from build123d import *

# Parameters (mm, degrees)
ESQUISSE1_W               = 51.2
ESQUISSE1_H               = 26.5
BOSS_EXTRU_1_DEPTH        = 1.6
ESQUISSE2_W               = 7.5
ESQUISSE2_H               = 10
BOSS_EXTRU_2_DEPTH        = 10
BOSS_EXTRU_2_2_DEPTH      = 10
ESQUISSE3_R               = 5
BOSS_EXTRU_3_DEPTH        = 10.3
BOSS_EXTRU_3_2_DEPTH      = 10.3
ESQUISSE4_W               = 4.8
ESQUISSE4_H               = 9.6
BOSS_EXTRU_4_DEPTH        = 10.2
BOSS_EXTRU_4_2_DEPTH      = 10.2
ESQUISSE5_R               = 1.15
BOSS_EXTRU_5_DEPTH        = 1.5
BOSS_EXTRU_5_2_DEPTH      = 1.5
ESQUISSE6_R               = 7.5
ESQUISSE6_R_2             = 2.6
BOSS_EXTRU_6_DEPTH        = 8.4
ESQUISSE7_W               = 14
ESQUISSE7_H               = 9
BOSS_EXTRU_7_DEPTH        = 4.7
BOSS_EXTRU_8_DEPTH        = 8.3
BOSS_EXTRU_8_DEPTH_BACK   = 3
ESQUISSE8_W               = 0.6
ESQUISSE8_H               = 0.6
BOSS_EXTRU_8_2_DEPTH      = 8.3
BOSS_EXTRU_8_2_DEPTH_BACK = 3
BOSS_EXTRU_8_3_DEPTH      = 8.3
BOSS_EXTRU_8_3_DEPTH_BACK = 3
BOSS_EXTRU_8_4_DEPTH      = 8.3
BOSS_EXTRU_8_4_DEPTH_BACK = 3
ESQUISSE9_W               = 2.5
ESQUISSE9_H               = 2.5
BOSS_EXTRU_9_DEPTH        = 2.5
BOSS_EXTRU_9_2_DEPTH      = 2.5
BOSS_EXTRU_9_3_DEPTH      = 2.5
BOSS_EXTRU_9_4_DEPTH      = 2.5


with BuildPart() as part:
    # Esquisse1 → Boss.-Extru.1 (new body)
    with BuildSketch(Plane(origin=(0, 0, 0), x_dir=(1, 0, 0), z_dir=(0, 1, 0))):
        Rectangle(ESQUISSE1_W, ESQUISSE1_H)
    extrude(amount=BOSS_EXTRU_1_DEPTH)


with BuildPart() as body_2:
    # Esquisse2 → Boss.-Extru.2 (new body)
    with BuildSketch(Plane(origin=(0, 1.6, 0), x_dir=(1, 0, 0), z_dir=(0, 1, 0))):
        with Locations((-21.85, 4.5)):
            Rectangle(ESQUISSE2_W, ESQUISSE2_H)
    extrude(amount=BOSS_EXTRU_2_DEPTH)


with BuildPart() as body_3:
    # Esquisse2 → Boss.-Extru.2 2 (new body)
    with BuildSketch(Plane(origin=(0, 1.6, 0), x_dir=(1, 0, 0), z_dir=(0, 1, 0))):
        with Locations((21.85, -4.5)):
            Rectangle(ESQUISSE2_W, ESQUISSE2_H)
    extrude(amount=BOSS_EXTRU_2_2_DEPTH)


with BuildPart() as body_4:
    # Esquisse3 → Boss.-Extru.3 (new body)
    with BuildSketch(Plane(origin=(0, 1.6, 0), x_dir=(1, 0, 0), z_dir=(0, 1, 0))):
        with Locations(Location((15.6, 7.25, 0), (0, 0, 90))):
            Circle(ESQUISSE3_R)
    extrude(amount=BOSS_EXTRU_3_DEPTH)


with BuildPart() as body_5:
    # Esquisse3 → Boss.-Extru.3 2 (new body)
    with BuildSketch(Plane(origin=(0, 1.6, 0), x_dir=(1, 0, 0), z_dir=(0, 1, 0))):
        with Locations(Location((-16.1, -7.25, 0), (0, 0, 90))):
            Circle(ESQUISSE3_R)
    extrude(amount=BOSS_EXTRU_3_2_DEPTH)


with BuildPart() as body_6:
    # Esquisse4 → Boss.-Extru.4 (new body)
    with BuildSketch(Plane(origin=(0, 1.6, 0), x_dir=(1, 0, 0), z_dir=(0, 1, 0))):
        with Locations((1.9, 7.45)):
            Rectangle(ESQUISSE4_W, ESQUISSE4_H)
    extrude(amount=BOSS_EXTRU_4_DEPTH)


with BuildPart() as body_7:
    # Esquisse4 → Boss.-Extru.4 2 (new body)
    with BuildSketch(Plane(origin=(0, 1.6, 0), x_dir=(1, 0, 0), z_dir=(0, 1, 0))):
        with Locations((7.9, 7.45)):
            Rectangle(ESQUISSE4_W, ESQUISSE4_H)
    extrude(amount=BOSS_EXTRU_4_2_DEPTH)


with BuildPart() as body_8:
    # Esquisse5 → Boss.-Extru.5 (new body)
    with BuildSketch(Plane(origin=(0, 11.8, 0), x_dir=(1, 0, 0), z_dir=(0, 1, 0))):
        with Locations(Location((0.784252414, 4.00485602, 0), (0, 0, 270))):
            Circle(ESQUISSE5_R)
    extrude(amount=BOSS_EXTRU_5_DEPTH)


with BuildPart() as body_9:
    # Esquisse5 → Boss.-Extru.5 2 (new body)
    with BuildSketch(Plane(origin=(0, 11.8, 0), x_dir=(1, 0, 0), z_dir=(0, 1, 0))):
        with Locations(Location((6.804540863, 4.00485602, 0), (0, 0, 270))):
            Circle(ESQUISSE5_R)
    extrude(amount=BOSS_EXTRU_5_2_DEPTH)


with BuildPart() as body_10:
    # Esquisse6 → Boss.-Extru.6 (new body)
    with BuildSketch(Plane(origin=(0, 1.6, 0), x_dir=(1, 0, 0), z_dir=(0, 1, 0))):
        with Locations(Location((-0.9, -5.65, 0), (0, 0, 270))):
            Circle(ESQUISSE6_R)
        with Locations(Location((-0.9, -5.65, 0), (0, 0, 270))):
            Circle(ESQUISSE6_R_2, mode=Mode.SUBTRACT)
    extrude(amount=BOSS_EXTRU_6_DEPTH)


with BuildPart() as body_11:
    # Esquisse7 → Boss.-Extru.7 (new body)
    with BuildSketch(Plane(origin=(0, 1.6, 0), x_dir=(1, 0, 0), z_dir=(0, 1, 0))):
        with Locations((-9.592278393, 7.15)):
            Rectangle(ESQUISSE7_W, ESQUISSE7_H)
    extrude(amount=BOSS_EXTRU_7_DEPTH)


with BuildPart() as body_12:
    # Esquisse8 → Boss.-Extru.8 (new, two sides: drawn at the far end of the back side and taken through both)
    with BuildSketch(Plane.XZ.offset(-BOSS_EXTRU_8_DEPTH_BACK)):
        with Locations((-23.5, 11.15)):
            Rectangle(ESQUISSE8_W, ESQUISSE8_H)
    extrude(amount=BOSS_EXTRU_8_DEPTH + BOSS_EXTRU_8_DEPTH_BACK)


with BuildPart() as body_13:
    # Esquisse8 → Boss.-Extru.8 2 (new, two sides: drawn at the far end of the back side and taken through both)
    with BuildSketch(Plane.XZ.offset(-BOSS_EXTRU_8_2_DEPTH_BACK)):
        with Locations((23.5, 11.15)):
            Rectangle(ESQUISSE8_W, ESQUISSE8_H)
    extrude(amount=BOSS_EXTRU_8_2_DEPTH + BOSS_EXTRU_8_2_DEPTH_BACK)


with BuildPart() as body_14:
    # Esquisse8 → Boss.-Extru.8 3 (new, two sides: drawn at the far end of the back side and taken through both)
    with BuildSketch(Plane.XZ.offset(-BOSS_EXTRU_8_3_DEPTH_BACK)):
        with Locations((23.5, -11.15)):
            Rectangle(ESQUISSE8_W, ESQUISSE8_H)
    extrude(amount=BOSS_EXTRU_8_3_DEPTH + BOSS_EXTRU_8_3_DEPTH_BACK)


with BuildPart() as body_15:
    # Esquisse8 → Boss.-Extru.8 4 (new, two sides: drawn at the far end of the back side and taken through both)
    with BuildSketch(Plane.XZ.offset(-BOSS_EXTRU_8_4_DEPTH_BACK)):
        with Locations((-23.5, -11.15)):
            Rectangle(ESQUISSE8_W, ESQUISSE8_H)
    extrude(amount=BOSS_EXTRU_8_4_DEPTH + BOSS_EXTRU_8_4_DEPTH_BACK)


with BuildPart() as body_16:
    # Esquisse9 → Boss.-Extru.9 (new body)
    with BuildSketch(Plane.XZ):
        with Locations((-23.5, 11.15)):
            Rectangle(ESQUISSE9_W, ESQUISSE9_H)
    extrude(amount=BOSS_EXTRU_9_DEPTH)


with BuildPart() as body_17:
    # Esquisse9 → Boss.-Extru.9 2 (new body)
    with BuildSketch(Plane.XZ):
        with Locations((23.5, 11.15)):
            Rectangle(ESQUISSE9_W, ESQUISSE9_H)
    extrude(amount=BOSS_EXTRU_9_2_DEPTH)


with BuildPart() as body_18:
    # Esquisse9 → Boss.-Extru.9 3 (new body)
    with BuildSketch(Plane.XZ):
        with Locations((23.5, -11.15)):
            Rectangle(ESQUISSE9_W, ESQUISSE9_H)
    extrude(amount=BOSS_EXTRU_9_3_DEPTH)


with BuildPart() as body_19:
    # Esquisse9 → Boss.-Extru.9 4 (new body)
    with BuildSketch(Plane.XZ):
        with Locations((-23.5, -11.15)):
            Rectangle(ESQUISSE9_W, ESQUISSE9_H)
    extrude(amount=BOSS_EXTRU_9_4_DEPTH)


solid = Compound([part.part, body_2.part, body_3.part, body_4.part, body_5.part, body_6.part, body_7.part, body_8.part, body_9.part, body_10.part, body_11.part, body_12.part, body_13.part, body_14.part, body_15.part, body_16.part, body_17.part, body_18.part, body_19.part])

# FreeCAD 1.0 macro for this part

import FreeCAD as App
import Part
import Sketcher

V = App.Vector
Q = App.Units.Quantity


def add_polygon(sketch, points):
    """Adds a closed chain of lines whose ends are joined by coincident constraints."""
    first, n = sketch.GeometryCount, len(points)
    for a, b in zip(points, points[1:] + points[:1]):
        sketch.addGeometry(Part.LineSegment(App.Vector(*a, 0), App.Vector(*b, 0)), False)
    for i in range(n):
        sketch.addConstraint(Sketcher.Constraint("Coincident", first + i, 2, first + (i + 1) % n, 1))

doc = App.newDocument("Part")
body = doc.addObject("PartDesign::Body", "Body")

sketch1 = body.newObject("Sketcher::SketchObject", "Sketch")
sketch1.AttachmentSupport = (doc.getObject("XZ_Plane"), [""])
sketch1.MapMode = "FlatFace"
add_polygon(sketch1, [(-25.6, -13.25), (-25.6, 13.25), (25.6, 13.25), (25.6, -13.25)])
sketch1.addConstraint([
    Sketcher.Constraint("Vertical", 0),
    Sketcher.Constraint("Horizontal", 1),
    Sketcher.Constraint("Vertical", 2),
    Sketcher.Constraint("Horizontal", 3),
    Sketcher.Constraint("Symmetric", 0, 2, 2, 2, -1, 1),
    Sketcher.Constraint("DistanceX", 1, 1, 1, 2, Q("51.2 mm")),
    Sketcher.Constraint("DistanceY", 0, 1, 0, 2, Q("26.5 mm")),
])
pad1 = body.newObject("PartDesign::Pad", "Pad")
pad1.Profile = sketch1
pad1.Length = 1.6
pad1.Reversed = True
body2 = doc.addObject("PartDesign::Body", "Body001")

sketch2 = body2.newObject("Sketcher::SketchObject", "Sketch001")
sketch2.AttachmentSupport = (doc.getObject("XZ_Plane001"), [""])
sketch2.MapMode = "FlatFace"
sketch2.AttachmentOffset = App.Placement(V(0, 0, -1.6), App.Rotation())
add_polygon(sketch2, [(-25.6, -9.5), (-25.6, 0.5), (-18.1, 0.5), (-18.1, -9.5)])
sketch2.addConstraint([
    Sketcher.Constraint("Vertical", 0),
    Sketcher.Constraint("Horizontal", 1),
    Sketcher.Constraint("Vertical", 2),
    Sketcher.Constraint("Horizontal", 3),
    Sketcher.Constraint("DistanceY", 0, 1, 0, 2, Q("10 mm")),
    Sketcher.Constraint("DistanceX", 1, 1, 1, 2, Q("7.5 mm")),
    Sketcher.Constraint("DistanceX", 0, 2, -1, 1, Q("25.6 mm")),
    Sketcher.Constraint("DistanceY", -1, 1, 0, 2, Q("0.5 mm")),
])
pad2 = body2.newObject("PartDesign::Pad", "Pad001")
pad2.Profile = sketch2
pad2.Length = 10
pad2.Reversed = True
body3 = doc.addObject("PartDesign::Body", "Body002")

sketch3 = body3.newObject("Sketcher::SketchObject", "Sketch002")
sketch3.AttachmentSupport = (doc.getObject("XZ_Plane002"), [""])
sketch3.MapMode = "FlatFace"
sketch3.AttachmentOffset = App.Placement(V(0, 0, -1.6), App.Rotation())
add_polygon(sketch3, [(18.1, -0.5), (18.1, 9.5), (25.6, 9.5), (25.6, -0.5)])
sketch3.addConstraint([
    Sketcher.Constraint("Vertical", 0),
    Sketcher.Constraint("Horizontal", 1),
    Sketcher.Constraint("Vertical", 2),
    Sketcher.Constraint("Horizontal", 3),
    Sketcher.Constraint("DistanceY", 0, 1, 0, 2, Q("10 mm")),
    Sketcher.Constraint("DistanceX", 1, 1, 1, 2, Q("7.5 mm")),
    Sketcher.Constraint("DistanceX", -1, 1, 0, 2, Q("18.1 mm")),
    Sketcher.Constraint("DistanceY", -1, 1, 0, 2, Q("9.5 mm")),
])
pad3 = body3.newObject("PartDesign::Pad", "Pad002")
pad3.Profile = sketch3
pad3.Length = 10
pad3.Reversed = True
body4 = doc.addObject("PartDesign::Body", "Body003")

sketch4 = body4.newObject("Sketcher::SketchObject", "Sketch003")
sketch4.AttachmentSupport = (doc.getObject("XZ_Plane003"), [""])
sketch4.MapMode = "FlatFace"
sketch4.AttachmentOffset = App.Placement(V(0, 0, -1.6), App.Rotation())
sketch4.addGeometry(Part.Circle(V(15.6, -7.25, 0), V(0, 0, 1), 5), False)
sketch4.addConstraint([
    Sketcher.Constraint("Diameter", 0, Q("10 mm")),
    Sketcher.Constraint("DistanceX", -1, 1, 0, 3, Q("15.6 mm")),
    Sketcher.Constraint("DistanceY", 0, 3, -1, 1, Q("7.25 mm")),
])
pad4 = body4.newObject("PartDesign::Pad", "Pad003")
pad4.Profile = sketch4
pad4.Length = 10.3
pad4.Reversed = True
body5 = doc.addObject("PartDesign::Body", "Body004")

sketch5 = body5.newObject("Sketcher::SketchObject", "Sketch004")
sketch5.AttachmentSupport = (doc.getObject("XZ_Plane004"), [""])
sketch5.MapMode = "FlatFace"
sketch5.AttachmentOffset = App.Placement(V(0, 0, -1.6), App.Rotation())
sketch5.addGeometry(Part.Circle(V(-16.1, 7.25, 0), V(0, 0, 1), 5), False)
sketch5.addConstraint([
    Sketcher.Constraint("Diameter", 0, Q("10 mm")),
    Sketcher.Constraint("DistanceX", 0, 3, -1, 1, Q("16.1 mm")),
    Sketcher.Constraint("DistanceY", -1, 1, 0, 3, Q("7.25 mm")),
])
pad5 = body5.newObject("PartDesign::Pad", "Pad004")
pad5.Profile = sketch5
pad5.Length = 10.3
pad5.Reversed = True
body6 = doc.addObject("PartDesign::Body", "Body005")

sketch6 = body6.newObject("Sketcher::SketchObject", "Sketch005")
sketch6.AttachmentSupport = (doc.getObject("XZ_Plane005"), [""])
sketch6.MapMode = "FlatFace"
sketch6.AttachmentOffset = App.Placement(V(0, 0, -1.6), App.Rotation())
add_polygon(sketch6, [(-0.5, -12.25), (-0.5, -2.65), (4.3, -2.65), (4.3, -12.25)])
sketch6.addConstraint([
    Sketcher.Constraint("Vertical", 0),
    Sketcher.Constraint("Horizontal", 1),
    Sketcher.Constraint("Vertical", 2),
    Sketcher.Constraint("Horizontal", 3),
    Sketcher.Constraint("DistanceX", 1, 1, 1, 2, Q("4.8 mm")),
    Sketcher.Constraint("DistanceY", 0, 1, 0, 2, Q("9.6 mm")),
    Sketcher.Constraint("DistanceX", 0, 2, -1, 1, Q("0.5 mm")),
    Sketcher.Constraint("DistanceY", 0, 2, -1, 1, Q("2.65 mm")),
])
pad6 = body6.newObject("PartDesign::Pad", "Pad005")
pad6.Profile = sketch6
pad6.Length = 10.2
pad6.Reversed = True
body7 = doc.addObject("PartDesign::Body", "Body006")

sketch7 = body7.newObject("Sketcher::SketchObject", "Sketch006")
sketch7.AttachmentSupport = (doc.getObject("XZ_Plane006"), [""])
sketch7.MapMode = "FlatFace"
sketch7.AttachmentOffset = App.Placement(V(0, 0, -1.6), App.Rotation())
add_polygon(sketch7, [(5.5, -12.25), (5.5, -2.65), (10.3, -2.65), (10.3, -12.25)])
sketch7.addConstraint([
    Sketcher.Constraint("Vertical", 0),
    Sketcher.Constraint("Horizontal", 1),
    Sketcher.Constraint("Vertical", 2),
    Sketcher.Constraint("Horizontal", 3),
    Sketcher.Constraint("DistanceX", 1, 1, 1, 2, Q("4.8 mm")),
    Sketcher.Constraint("DistanceY", 0, 1, 0, 2, Q("9.6 mm")),
    Sketcher.Constraint("DistanceX", -1, 1, 0, 2, Q("5.5 mm")),
    Sketcher.Constraint("DistanceY", 0, 2, -1, 1, Q("2.65 mm")),
])
pad7 = body7.newObject("PartDesign::Pad", "Pad006")
pad7.Profile = sketch7
pad7.Length = 10.2
pad7.Reversed = True
body8 = doc.addObject("PartDesign::Body", "Body007")

sketch8 = body8.newObject("Sketcher::SketchObject", "Sketch007")
sketch8.AttachmentSupport = (doc.getObject("XZ_Plane007"), [""])
sketch8.MapMode = "FlatFace"
sketch8.AttachmentOffset = App.Placement(V(0, 0, -11.8), App.Rotation())
sketch8.addGeometry(Part.Circle(V(0.784252, -4.004856, 0), V(0, 0, 1), 1.15), False)
sketch8.addConstraint([
    Sketcher.Constraint("Diameter", 0, Q("2.3 mm")),
    Sketcher.Constraint("DistanceX", -1, 1, 0, 3, Q("0.784252 mm")),
    Sketcher.Constraint("DistanceY", 0, 3, -1, 1, Q("4.004856 mm")),
])
pad8 = body8.newObject("PartDesign::Pad", "Pad007")
pad8.Profile = sketch8
pad8.Length = 1.5
pad8.Reversed = True
body9 = doc.addObject("PartDesign::Body", "Body008")

sketch9 = body9.newObject("Sketcher::SketchObject", "Sketch008")
sketch9.AttachmentSupport = (doc.getObject("XZ_Plane008"), [""])
sketch9.MapMode = "FlatFace"
sketch9.AttachmentOffset = App.Placement(V(0, 0, -11.8), App.Rotation())
sketch9.addGeometry(Part.Circle(V(6.804541, -4.004856, 0), V(0, 0, 1), 1.15), False)
sketch9.addConstraint([
    Sketcher.Constraint("Diameter", 0, Q("2.3 mm")),
    Sketcher.Constraint("DistanceX", -1, 1, 0, 3, Q("6.804541 mm")),
    Sketcher.Constraint("DistanceY", 0, 3, -1, 1, Q("4.004856 mm")),
])
pad9 = body9.newObject("PartDesign::Pad", "Pad008")
pad9.Profile = sketch9
pad9.Length = 1.5
pad9.Reversed = True
body10 = doc.addObject("PartDesign::Body", "Body009")

sketch10 = body10.newObject("Sketcher::SketchObject", "Sketch009")
sketch10.AttachmentSupport = (doc.getObject("XZ_Plane009"), [""])
sketch10.MapMode = "FlatFace"
sketch10.AttachmentOffset = App.Placement(V(0, 0, -1.6), App.Rotation())
sketch10.addGeometry([
    Part.Circle(V(-0.9, 5.65, 0), V(0, 0, 1), 7.5),
    Part.Circle(V(-0.9, 5.65, 0), V(0, 0, 1), 2.6),
], False)
sketch10.addConstraint([
    Sketcher.Constraint("Coincident", 1, 3, 0, 3),
    Sketcher.Constraint("Diameter", 0, Q("15 mm")),
    Sketcher.Constraint("Diameter", 1, Q("5.2 mm")),
    Sketcher.Constraint("DistanceX", 0, 3, -1, 1, Q("0.9 mm")),
    Sketcher.Constraint("DistanceY", -1, 1, 0, 3, Q("5.65 mm")),
])
pad10 = body10.newObject("PartDesign::Pad", "Pad009")
pad10.Profile = sketch10
pad10.Length = 8.4
pad10.Reversed = True
body11 = doc.addObject("PartDesign::Body", "Body010")

sketch11 = body11.newObject("Sketcher::SketchObject", "Sketch010")
sketch11.AttachmentSupport = (doc.getObject("XZ_Plane010"), [""])
sketch11.MapMode = "FlatFace"
sketch11.AttachmentOffset = App.Placement(V(0, 0, -1.6), App.Rotation())
add_polygon(sketch11, [(-16.592278, -11.65), (-16.592278, -2.65), (-2.592278, -2.65), (-2.592278, -11.65)])
sketch11.addConstraint([
    Sketcher.Constraint("Vertical", 0),
    Sketcher.Constraint("Horizontal", 1),
    Sketcher.Constraint("Vertical", 2),
    Sketcher.Constraint("Horizontal", 3),
    Sketcher.Constraint("DistanceX", 1, 1, 1, 2, Q("14 mm")),
    Sketcher.Constraint("DistanceY", 0, 1, 0, 2, Q("9 mm")),
    Sketcher.Constraint("DistanceY", 0, 2, -1, 1, Q("2.65 mm")),
    Sketcher.Constraint("DistanceX", 0, 2, -1, 1, Q("16.592278 mm")),
])
pad11 = body11.newObject("PartDesign::Pad", "Pad010")
pad11.Profile = sketch11
pad11.Length = 4.7
pad11.Reversed = True
body12 = doc.addObject("PartDesign::Body", "Body011")

sketch12 = body12.newObject("Sketcher::SketchObject", "Sketch011")
sketch12.AttachmentSupport = (doc.getObject("XZ_Plane011"), [""])
sketch12.MapMode = "FlatFace"
add_polygon(sketch12, [(-23.8, 11.45), (-23.8, 10.85), (-23.2, 10.85), (-23.2, 11.45)])
sketch12.addConstraint([
    Sketcher.Constraint("Vertical", 0),
    Sketcher.Constraint("Horizontal", 1),
    Sketcher.Constraint("Vertical", 2),
    Sketcher.Constraint("Horizontal", 3),
    Sketcher.Constraint("Equal", 3, 0),
    Sketcher.Constraint("DistanceX", 1, 1, 1, 2, Q("0.6 mm")),
    Sketcher.Constraint("DistanceX", 0, 2, -1, 1, Q("23.8 mm")),
    Sketcher.Constraint("DistanceY", -1, 1, 0, 2, Q("10.85 mm")),
])
pad12 = body12.newObject("PartDesign::Pad", "Pad011")
pad12.Profile = sketch12
pad12.Type = "TwoLengths"
pad12.Length = 8.3
pad12.Length2 = 3
body13 = doc.addObject("PartDesign::Body", "Body012")

sketch13 = body13.newObject("Sketcher::SketchObject", "Sketch012")
sketch13.AttachmentSupport = (doc.getObject("XZ_Plane012"), [""])
sketch13.MapMode = "FlatFace"
add_polygon(sketch13, [(23.2, 11.45), (23.2, 10.85), (23.8, 10.85), (23.8, 11.45)])
sketch13.addConstraint([
    Sketcher.Constraint("Vertical", 0),
    Sketcher.Constraint("Horizontal", 1),
    Sketcher.Constraint("Vertical", 2),
    Sketcher.Constraint("Horizontal", 3),
    Sketcher.Constraint("Equal", 3, 0),
    Sketcher.Constraint("DistanceX", 1, 1, 1, 2, Q("0.6 mm")),
    Sketcher.Constraint("DistanceX", -1, 1, 0, 2, Q("23.2 mm")),
    Sketcher.Constraint("DistanceY", -1, 1, 0, 2, Q("10.85 mm")),
])
pad13 = body13.newObject("PartDesign::Pad", "Pad012")
pad13.Profile = sketch13
pad13.Type = "TwoLengths"
pad13.Length = 8.3
pad13.Length2 = 3
body14 = doc.addObject("PartDesign::Body", "Body013")

sketch14 = body14.newObject("Sketcher::SketchObject", "Sketch013")
sketch14.AttachmentSupport = (doc.getObject("XZ_Plane013"), [""])
sketch14.MapMode = "FlatFace"
add_polygon(sketch14, [(23.2, -10.85), (23.2, -11.45), (23.8, -11.45), (23.8, -10.85)])
sketch14.addConstraint([
    Sketcher.Constraint("Vertical", 0),
    Sketcher.Constraint("Horizontal", 1),
    Sketcher.Constraint("Vertical", 2),
    Sketcher.Constraint("Horizontal", 3),
    Sketcher.Constraint("Equal", 3, 0),
    Sketcher.Constraint("DistanceX", 1, 1, 1, 2, Q("0.6 mm")),
    Sketcher.Constraint("DistanceX", -1, 1, 0, 2, Q("23.2 mm")),
    Sketcher.Constraint("DistanceY", 0, 2, -1, 1, Q("11.45 mm")),
])
pad14 = body14.newObject("PartDesign::Pad", "Pad013")
pad14.Profile = sketch14
pad14.Type = "TwoLengths"
pad14.Length = 8.3
pad14.Length2 = 3
body15 = doc.addObject("PartDesign::Body", "Body014")

sketch15 = body15.newObject("Sketcher::SketchObject", "Sketch014")
sketch15.AttachmentSupport = (doc.getObject("XZ_Plane014"), [""])
sketch15.MapMode = "FlatFace"
add_polygon(sketch15, [(-23.8, -10.85), (-23.8, -11.45), (-23.2, -11.45), (-23.2, -10.85)])
sketch15.addConstraint([
    Sketcher.Constraint("Vertical", 0),
    Sketcher.Constraint("Horizontal", 1),
    Sketcher.Constraint("Vertical", 2),
    Sketcher.Constraint("Horizontal", 3),
    Sketcher.Constraint("Equal", 3, 0),
    Sketcher.Constraint("DistanceX", 1, 1, 1, 2, Q("0.6 mm")),
    Sketcher.Constraint("DistanceX", 0, 2, -1, 1, Q("23.8 mm")),
    Sketcher.Constraint("DistanceY", 0, 2, -1, 1, Q("11.45 mm")),
])
pad15 = body15.newObject("PartDesign::Pad", "Pad014")
pad15.Profile = sketch15
pad15.Type = "TwoLengths"
pad15.Length = 8.3
pad15.Length2 = 3
body16 = doc.addObject("PartDesign::Body", "Body015")

sketch16 = body16.newObject("Sketcher::SketchObject", "Sketch015")
sketch16.AttachmentSupport = (doc.getObject("XZ_Plane015"), [""])
sketch16.MapMode = "FlatFace"
add_polygon(sketch16, [(-24.75, 12.4), (-24.75, 9.9), (-22.25, 9.9), (-22.25, 12.4)])
sketch16.addConstraint([
    Sketcher.Constraint("Vertical", 0),
    Sketcher.Constraint("Horizontal", 1),
    Sketcher.Constraint("Vertical", 2),
    Sketcher.Constraint("Horizontal", 3),
    Sketcher.Constraint("Equal", 3, 0),
    Sketcher.Constraint("DistanceX", 1, 1, 1, 2, Q("2.5 mm")),
    Sketcher.Constraint("DistanceY", -1, 1, 0, 2, Q("9.9 mm")),
    Sketcher.Constraint("DistanceX", 0, 2, -1, 1, Q("24.75 mm")),
])
pad16 = body16.newObject("PartDesign::Pad", "Pad015")
pad16.Profile = sketch16
pad16.Length = 2.5
body17 = doc.addObject("PartDesign::Body", "Body016")

sketch17 = body17.newObject("Sketcher::SketchObject", "Sketch016")
sketch17.AttachmentSupport = (doc.getObject("XZ_Plane016"), [""])
sketch17.MapMode = "FlatFace"
add_polygon(sketch17, [(22.25, 12.4), (22.25, 9.9), (24.75, 9.9), (24.75, 12.4)])
sketch17.addConstraint([
    Sketcher.Constraint("Vertical", 0),
    Sketcher.Constraint("Horizontal", 1),
    Sketcher.Constraint("Vertical", 2),
    Sketcher.Constraint("Horizontal", 3),
    Sketcher.Constraint("Equal", 3, 0),
    Sketcher.Constraint("DistanceX", 1, 1, 1, 2, Q("2.5 mm")),
    Sketcher.Constraint("DistanceY", -1, 1, 0, 2, Q("9.9 mm")),
    Sketcher.Constraint("DistanceX", -1, 1, 0, 2, Q("22.25 mm")),
])
pad17 = body17.newObject("PartDesign::Pad", "Pad016")
pad17.Profile = sketch17
pad17.Length = 2.5
body18 = doc.addObject("PartDesign::Body", "Body017")

sketch18 = body18.newObject("Sketcher::SketchObject", "Sketch017")
sketch18.AttachmentSupport = (doc.getObject("XZ_Plane017"), [""])
sketch18.MapMode = "FlatFace"
add_polygon(sketch18, [(22.25, -9.9), (22.25, -12.4), (24.75, -12.4), (24.75, -9.9)])
sketch18.addConstraint([
    Sketcher.Constraint("Vertical", 0),
    Sketcher.Constraint("Horizontal", 1),
    Sketcher.Constraint("Vertical", 2),
    Sketcher.Constraint("Horizontal", 3),
    Sketcher.Constraint("Equal", 3, 0),
    Sketcher.Constraint("DistanceX", 1, 1, 1, 2, Q("2.5 mm")),
    Sketcher.Constraint("DistanceY", 0, 2, -1, 1, Q("12.4 mm")),
    Sketcher.Constraint("DistanceX", -1, 1, 0, 2, Q("22.25 mm")),
])
pad18 = body18.newObject("PartDesign::Pad", "Pad017")
pad18.Profile = sketch18
pad18.Length = 2.5
body19 = doc.addObject("PartDesign::Body", "Body018")

sketch19 = body19.newObject("Sketcher::SketchObject", "Sketch018")
sketch19.AttachmentSupport = (doc.getObject("XZ_Plane018"), [""])
sketch19.MapMode = "FlatFace"
add_polygon(sketch19, [(-24.75, -9.9), (-24.75, -12.4), (-22.25, -12.4), (-22.25, -9.9)])
sketch19.addConstraint([
    Sketcher.Constraint("Vertical", 0),
    Sketcher.Constraint("Horizontal", 1),
    Sketcher.Constraint("Vertical", 2),
    Sketcher.Constraint("Horizontal", 3),
    Sketcher.Constraint("Equal", 3, 0),
    Sketcher.Constraint("DistanceX", 1, 1, 1, 2, Q("2.5 mm")),
    Sketcher.Constraint("DistanceY", 0, 2, -1, 1, Q("12.4 mm")),
    Sketcher.Constraint("DistanceX", 0, 2, -1, 1, Q("24.75 mm")),
])
pad19 = body19.newObject("PartDesign::Pad", "Pad018")
pad19.Profile = sketch19
pad19.Length = 2.5

doc.recompute()
